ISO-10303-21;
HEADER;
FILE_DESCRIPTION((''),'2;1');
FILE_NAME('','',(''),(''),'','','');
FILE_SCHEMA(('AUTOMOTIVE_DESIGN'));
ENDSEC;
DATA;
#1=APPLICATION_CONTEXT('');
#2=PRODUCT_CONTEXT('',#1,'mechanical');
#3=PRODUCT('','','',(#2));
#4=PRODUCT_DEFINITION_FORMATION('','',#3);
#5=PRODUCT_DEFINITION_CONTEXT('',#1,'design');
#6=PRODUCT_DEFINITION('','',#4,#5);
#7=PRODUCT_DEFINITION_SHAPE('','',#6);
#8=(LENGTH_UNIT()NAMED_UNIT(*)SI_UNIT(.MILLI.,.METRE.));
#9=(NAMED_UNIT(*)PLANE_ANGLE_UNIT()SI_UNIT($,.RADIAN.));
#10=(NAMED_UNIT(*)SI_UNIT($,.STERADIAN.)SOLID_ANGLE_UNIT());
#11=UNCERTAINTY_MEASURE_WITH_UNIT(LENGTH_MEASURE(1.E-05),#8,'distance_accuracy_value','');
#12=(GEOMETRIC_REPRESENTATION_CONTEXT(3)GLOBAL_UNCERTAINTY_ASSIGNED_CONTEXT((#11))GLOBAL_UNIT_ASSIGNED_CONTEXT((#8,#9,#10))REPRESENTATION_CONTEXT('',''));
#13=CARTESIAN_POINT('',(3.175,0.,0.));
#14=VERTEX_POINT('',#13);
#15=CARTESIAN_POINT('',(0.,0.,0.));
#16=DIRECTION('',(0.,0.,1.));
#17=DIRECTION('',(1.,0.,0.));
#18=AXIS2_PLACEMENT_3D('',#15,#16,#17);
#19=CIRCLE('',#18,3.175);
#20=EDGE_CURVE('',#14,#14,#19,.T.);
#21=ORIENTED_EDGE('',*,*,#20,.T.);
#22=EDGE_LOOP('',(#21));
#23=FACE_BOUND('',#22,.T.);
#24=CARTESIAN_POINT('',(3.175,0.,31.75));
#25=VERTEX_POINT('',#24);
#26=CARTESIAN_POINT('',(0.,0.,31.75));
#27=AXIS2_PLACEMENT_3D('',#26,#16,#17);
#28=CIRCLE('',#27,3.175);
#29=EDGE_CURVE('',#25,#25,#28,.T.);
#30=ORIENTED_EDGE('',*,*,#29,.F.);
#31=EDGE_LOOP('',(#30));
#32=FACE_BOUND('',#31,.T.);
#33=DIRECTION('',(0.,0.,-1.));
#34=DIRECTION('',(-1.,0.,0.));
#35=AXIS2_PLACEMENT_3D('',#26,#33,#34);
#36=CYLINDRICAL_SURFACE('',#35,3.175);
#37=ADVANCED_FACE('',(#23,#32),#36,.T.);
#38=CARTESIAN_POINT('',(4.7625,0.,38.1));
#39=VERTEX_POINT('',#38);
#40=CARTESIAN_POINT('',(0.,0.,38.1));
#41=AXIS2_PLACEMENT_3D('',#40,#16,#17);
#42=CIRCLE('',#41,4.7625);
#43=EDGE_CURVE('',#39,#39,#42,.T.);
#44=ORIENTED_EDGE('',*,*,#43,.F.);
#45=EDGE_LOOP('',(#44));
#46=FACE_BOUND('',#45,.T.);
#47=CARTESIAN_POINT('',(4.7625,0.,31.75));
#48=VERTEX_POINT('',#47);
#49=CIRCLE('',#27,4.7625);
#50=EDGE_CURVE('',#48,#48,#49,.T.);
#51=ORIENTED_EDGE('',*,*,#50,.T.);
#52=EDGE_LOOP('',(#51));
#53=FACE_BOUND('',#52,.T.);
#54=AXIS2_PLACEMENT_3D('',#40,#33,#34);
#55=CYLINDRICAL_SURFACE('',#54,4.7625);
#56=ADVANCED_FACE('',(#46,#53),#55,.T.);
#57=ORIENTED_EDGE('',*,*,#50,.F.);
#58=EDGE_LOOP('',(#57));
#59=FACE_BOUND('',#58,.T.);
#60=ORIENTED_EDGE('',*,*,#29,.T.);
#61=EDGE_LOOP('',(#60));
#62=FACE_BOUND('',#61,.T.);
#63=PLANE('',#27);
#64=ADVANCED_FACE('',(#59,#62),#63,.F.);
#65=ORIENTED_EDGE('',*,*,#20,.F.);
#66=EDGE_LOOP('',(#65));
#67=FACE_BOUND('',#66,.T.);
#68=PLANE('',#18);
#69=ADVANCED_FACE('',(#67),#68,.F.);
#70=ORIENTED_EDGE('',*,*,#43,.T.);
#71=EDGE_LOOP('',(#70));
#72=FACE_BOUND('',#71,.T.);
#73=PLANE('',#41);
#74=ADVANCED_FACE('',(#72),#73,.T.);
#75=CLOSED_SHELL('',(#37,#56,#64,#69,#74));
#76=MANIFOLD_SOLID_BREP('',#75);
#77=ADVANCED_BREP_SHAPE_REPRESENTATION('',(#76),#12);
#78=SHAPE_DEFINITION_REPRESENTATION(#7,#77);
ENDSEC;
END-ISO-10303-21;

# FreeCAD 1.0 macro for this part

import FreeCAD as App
import Part
import Sketcher
from FreeCAD import Vector
Q = App.Units.Quantity

doc = App.newDocument("Part")
body = doc.addObject("PartDesign::Body", "Body")

# Sketch on XY plane
sketch1 = body.newObject("Sketcher::SketchObject", "Sketch")
sketch1.AttachmentSupport = (doc.getObject("XY_Plane"), [""])
sketch1.MapMode = "FlatFace"
sketch1.addGeometry(Part.Circle(Vector(0, 0, 0), Vector(0, 0, 1), 3.2), False)
sketch1.addConstraint([
    Sketcher.Constraint("Coincident", 0, 3, -1, 1),
    Sketcher.Constraint("Diameter", 0, Q("0.25 in")),
])
pad1 = body.newObject("PartDesign::Pad", "Pad")
pad1.Profile = sketch1
pad1.Length = Q("1.25 in")

# Sketch on XY plane
sketch2 = body.newObject("Sketcher::SketchObject", "Sketch001")
sketch2.AttachmentSupport = (doc.getObject("XY_Plane"), [""])
sketch2.MapMode = "FlatFace"
sketch2.AttachmentOffset = App.Placement(Vector(0, 0, 1.25 * 25.4), App.Rotation())
sketch2.addGeometry(Part.Circle(Vector(0, 0, 0), Vector(0, 0, 1), 4.8), False)
sketch2.addConstraint([
    Sketcher.Constraint("Coincident", 0, 3, -1, 1),
    Sketcher.Constraint("Diameter", 0, Q("0.375 in")),
])
pad2 = body.newObject("PartDesign::Pad", "Pad001")
pad2.Profile = sketch2
pad2.Length = Q("0.25 in")

doc.recompute()
